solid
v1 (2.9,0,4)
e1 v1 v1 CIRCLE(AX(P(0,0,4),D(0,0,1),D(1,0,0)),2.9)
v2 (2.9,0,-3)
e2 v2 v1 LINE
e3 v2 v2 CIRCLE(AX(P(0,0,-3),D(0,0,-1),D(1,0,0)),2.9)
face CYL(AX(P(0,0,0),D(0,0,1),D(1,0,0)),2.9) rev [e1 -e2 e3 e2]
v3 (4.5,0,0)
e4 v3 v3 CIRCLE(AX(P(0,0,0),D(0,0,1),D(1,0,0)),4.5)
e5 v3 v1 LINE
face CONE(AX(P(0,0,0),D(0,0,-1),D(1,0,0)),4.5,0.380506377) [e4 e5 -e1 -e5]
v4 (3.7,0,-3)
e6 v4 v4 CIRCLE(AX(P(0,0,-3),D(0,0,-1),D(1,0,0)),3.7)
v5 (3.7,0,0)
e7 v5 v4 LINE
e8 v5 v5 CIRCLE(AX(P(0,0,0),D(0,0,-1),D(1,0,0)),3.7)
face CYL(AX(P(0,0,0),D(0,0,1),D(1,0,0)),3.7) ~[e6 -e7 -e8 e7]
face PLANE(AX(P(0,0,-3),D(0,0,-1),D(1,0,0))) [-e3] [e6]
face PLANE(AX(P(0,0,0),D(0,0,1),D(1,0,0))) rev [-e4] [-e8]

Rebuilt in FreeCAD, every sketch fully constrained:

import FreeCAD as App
import Part
import Sketcher
Q = App.Units.Quantity


def add_polygon(sketch, points):
    """Adds a closed chain of lines whose ends are joined by coincident constraints."""
    first, n = sketch.GeometryCount, len(points)
    for a, b in zip(points, points[1:] + points[:1]):
        sketch.addGeometry(Part.LineSegment(App.Vector(*a, 0), App.Vector(*b, 0)), False)
    for i in range(n):
        sketch.addConstraint(Sketcher.Constraint("Coincident", first + i, 2, first + (i + 1) % n, 1))

doc = App.newDocument("Part")
body = doc.addObject("PartDesign::Body", "Body")

sketch1 = body.newObject("Sketcher::SketchObject", "Sketch")
sketch1.AttachmentSupport = (doc.getObject("XZ_Plane"), [""])
sketch1.MapMode = "FlatFace"
add_polygon(sketch1, [(2.9, 0), (4.5, 0), (2.9, 4)])
sketch1.addConstraint([
    Sketcher.Constraint("Horizontal", 0),
    Sketcher.Constraint("Vertical", 2),
    Sketcher.Constraint("PointOnObject", 0, 2, -1),
    Sketcher.Constraint("DistanceY", 2, 2, 2, 1, Q("4 mm")),
    Sketcher.Constraint("DistanceX", 0, 1, 0, 2, Q("1.6 mm")),
    Sketcher.Constraint("DistanceX", -1, 1, 0, 2, Q("4.5 mm")),
])
revolution = body.newObject("PartDesign::Revolution", "Revolution")
revolution.Profile = sketch1
revolution.ReferenceAxis = (sketch1, ["V_Axis"])
revolution.Angle = 360

sketch2 = body.newObject("Sketcher::SketchObject", "Sketch001")
sketch2.AttachmentSupport = (doc.getObject("XY_Plane"), [""])
sketch2.MapMode = "FlatFace"
sketch2.addGeometry([
    Part.Circle(App.Vector(0, 0, 0), App.Vector(0, 0, 1), 3.7),
    Part.Circle(App.Vector(0, 0, 0), App.Vector(0, 0, 1), 2.9),
], False)
sketch2.addConstraint([
    Sketcher.Constraint("Coincident", 0, 3, -1, 1),
    Sketcher.Constraint("Coincident", 1, 3, -1, 1),
    Sketcher.Constraint("Diameter", 0, Q("7.4 mm")),
    Sketcher.Constraint("Diameter", 1, Q("5.8 mm")),
])
pad1 = body.newObject("PartDesign::Pad", "Pad")
pad1.Profile = sketch2
pad1.Length = 3
pad1.Reversed = True

doc.recompute()
